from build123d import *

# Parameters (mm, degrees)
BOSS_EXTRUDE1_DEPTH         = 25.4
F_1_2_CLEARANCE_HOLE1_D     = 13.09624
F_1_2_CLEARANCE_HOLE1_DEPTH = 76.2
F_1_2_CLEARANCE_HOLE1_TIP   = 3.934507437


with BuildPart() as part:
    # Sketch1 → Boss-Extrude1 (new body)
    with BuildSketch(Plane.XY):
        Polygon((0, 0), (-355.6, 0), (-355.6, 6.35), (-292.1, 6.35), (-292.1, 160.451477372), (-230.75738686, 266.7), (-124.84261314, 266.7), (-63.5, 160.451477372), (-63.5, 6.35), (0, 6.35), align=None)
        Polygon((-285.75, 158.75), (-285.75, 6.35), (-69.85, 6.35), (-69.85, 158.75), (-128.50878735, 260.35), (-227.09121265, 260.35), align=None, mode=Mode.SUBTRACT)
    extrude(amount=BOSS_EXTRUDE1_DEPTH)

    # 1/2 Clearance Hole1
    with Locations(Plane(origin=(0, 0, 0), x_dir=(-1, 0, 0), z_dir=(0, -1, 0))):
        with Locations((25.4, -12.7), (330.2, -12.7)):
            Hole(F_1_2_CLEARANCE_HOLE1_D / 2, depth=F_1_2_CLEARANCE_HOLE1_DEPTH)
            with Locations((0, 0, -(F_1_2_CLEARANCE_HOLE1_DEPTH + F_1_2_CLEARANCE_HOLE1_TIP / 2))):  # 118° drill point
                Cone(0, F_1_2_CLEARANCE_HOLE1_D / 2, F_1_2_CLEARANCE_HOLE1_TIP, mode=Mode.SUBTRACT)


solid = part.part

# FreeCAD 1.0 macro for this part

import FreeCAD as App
import Part
import Sketcher
from FreeCAD import Vector
Q = App.Units.Quantity


def add_polygon(sketch, points):
    """Adds a closed chain of lines whose ends are joined by coincident constraints."""
    first, n = sketch.GeometryCount, len(points)
    for a, b in zip(points, points[1:] + points[:1]):
        sketch.addGeometry(Part.LineSegment(App.Vector(*a, 0), App.Vector(*b, 0)), False)
    for i in range(n):
        sketch.addConstraint(Sketcher.Constraint("Coincident", first + i, 2, first + (i + 1) % n, 1))

doc = App.newDocument("Part")
body = doc.addObject("PartDesign::Body", "Body")

sketch1 = doc.addObject("Sketcher::SketchObject", "Sketch")
body.addObject(sketch1)
sketch1.AttachmentSupport = (doc.XY_Plane, [""])
sketch1.MapMode = "FlatFace"
add_polygon(sketch1, [(-356, 0), (0, 0), (0, 6), (-64, 6), (-64, 160), (-125, 267), (-231, 267), (-292, 160), (-292, 6), (-356, 6)])
add_polygon(sketch1, [(-286, 159), (-227, 260), (-129, 260), (-70, 159), (-70, 6), (-286, 6)])
sketch1.addConstraint([
    Sketcher.Constraint("Horizontal", 0),
    Sketcher.Constraint("Vertical", 1),
    Sketcher.Constraint("Horizontal", 2),
    Sketcher.Constraint("Vertical", 3),
    Sketcher.Constraint("Horizontal", 5),
    Sketcher.Constraint("Vertical", 7),
    Sketcher.Constraint("Horizontal", 8),
    Sketcher.Constraint("Vertical", 9),
    Sketcher.Constraint("Horizontal", 11),
    Sketcher.Constraint("Vertical", 13),
    Sketcher.Constraint("Horizontal", 14),
    Sketcher.Constraint("Vertical", 15),
    Sketcher.Constraint("Coincident", 0, 2, -1, 1),
    Sketcher.Constraint("Parallel", 6, 10),
    Sketcher.Constraint("Parallel", 4, 12),
    Sketcher.Constraint("Horizontal", 3, 2, 6, 2),
    Sketcher.Constraint("Horizontal", 2, 2, 7, 2),
    Sketcher.Constraint("Horizontal", 8, 2, 13, 2),
    Sketcher.Constraint("Horizontal", 12, 2, 15, 2),
    Sketcher.Constraint("Equal", 2, 8),
    Sketcher.Constraint("Equal", 4, 6),
    Sketcher.Constraint("DistanceX", 0, 1, 0, 2, Q("14 in")),
    Sketcher.Constraint("DistanceY", 13, 2, 13, 1, Q("6 in")),
    Sketcher.Constraint("DistanceX", 2, 2, 2, 1, Q("2.5 in")),
    Sketcher.Constraint("DistanceX", 14, 2, 14, 1, Q("8.5 in")),
    Sketcher.Constraint("Angle", 4, Q("120 deg")),
    Sketcher.Constraint("DistanceY", 7, 2, 10, 2, Q("10 in")),
    Sketcher.Constraint("DistanceY", 1, 1, 1, 2, Q("0.25 in")),
    Sketcher.Constraint("DistanceY", -1, 1, 4, 2, Q("10.5 in")),
    Sketcher.Constraint("DistanceX", 12, 2, -1, 1, Q("2.75 in")),
    Sketcher.Constraint("DistanceX", 10, 2, 4, 2, 102.2486),
])
pad1 = doc.addObject("PartDesign::Pad", "Pad")
body.addObject(pad1)
pad1.Profile = sketch1
pad1.Length = Q("1 in")

sketch2 = doc.addObject("Sketcher::SketchObject", "Sketch001")
body.addObject(sketch2)
sketch2.AttachmentSupport = (doc.XZ_Plane, [""])
sketch2.MapMode = "FlatFace"
sketch2.addGeometry([
    Part.Circle(Vector(-25, 13, 0), Vector(0, 0, 1), 7),
    Part.Circle(Vector(-330, 13, 0), Vector(0, 0, 1), 7),
], False)
sketch2.addConstraint([
    Sketcher.Constraint("Equal", 0, 1),
    Sketcher.Constraint("Horizontal", 0, 3, 1, 3),
    Sketcher.Constraint("DistanceX", 0, 3, -1, 1, Q("1 in")),
    Sketcher.Constraint("DistanceX", 1, 3, -1, 1, Q("13 in")),
    Sketcher.Constraint("Diameter", 0, Q("0.5156 in")),
    Sketcher.Constraint("DistanceY", -1, 1, 0, 3, Q("0.5 in")),
])
doc.recompute()
hole = doc.addObject("PartDesign::Hole", "Hole")
body.addObject(hole)
hole.Profile = sketch2
hole.ThreadType = "None"
hole.Diameter = Q("0.5156 in")
hole.DepthType = "Dimension"
hole.Depth = Q("3 in")
hole.DrillPoint = "Angled"
hole.DrillPointAngle = 118

doc.recompute()
